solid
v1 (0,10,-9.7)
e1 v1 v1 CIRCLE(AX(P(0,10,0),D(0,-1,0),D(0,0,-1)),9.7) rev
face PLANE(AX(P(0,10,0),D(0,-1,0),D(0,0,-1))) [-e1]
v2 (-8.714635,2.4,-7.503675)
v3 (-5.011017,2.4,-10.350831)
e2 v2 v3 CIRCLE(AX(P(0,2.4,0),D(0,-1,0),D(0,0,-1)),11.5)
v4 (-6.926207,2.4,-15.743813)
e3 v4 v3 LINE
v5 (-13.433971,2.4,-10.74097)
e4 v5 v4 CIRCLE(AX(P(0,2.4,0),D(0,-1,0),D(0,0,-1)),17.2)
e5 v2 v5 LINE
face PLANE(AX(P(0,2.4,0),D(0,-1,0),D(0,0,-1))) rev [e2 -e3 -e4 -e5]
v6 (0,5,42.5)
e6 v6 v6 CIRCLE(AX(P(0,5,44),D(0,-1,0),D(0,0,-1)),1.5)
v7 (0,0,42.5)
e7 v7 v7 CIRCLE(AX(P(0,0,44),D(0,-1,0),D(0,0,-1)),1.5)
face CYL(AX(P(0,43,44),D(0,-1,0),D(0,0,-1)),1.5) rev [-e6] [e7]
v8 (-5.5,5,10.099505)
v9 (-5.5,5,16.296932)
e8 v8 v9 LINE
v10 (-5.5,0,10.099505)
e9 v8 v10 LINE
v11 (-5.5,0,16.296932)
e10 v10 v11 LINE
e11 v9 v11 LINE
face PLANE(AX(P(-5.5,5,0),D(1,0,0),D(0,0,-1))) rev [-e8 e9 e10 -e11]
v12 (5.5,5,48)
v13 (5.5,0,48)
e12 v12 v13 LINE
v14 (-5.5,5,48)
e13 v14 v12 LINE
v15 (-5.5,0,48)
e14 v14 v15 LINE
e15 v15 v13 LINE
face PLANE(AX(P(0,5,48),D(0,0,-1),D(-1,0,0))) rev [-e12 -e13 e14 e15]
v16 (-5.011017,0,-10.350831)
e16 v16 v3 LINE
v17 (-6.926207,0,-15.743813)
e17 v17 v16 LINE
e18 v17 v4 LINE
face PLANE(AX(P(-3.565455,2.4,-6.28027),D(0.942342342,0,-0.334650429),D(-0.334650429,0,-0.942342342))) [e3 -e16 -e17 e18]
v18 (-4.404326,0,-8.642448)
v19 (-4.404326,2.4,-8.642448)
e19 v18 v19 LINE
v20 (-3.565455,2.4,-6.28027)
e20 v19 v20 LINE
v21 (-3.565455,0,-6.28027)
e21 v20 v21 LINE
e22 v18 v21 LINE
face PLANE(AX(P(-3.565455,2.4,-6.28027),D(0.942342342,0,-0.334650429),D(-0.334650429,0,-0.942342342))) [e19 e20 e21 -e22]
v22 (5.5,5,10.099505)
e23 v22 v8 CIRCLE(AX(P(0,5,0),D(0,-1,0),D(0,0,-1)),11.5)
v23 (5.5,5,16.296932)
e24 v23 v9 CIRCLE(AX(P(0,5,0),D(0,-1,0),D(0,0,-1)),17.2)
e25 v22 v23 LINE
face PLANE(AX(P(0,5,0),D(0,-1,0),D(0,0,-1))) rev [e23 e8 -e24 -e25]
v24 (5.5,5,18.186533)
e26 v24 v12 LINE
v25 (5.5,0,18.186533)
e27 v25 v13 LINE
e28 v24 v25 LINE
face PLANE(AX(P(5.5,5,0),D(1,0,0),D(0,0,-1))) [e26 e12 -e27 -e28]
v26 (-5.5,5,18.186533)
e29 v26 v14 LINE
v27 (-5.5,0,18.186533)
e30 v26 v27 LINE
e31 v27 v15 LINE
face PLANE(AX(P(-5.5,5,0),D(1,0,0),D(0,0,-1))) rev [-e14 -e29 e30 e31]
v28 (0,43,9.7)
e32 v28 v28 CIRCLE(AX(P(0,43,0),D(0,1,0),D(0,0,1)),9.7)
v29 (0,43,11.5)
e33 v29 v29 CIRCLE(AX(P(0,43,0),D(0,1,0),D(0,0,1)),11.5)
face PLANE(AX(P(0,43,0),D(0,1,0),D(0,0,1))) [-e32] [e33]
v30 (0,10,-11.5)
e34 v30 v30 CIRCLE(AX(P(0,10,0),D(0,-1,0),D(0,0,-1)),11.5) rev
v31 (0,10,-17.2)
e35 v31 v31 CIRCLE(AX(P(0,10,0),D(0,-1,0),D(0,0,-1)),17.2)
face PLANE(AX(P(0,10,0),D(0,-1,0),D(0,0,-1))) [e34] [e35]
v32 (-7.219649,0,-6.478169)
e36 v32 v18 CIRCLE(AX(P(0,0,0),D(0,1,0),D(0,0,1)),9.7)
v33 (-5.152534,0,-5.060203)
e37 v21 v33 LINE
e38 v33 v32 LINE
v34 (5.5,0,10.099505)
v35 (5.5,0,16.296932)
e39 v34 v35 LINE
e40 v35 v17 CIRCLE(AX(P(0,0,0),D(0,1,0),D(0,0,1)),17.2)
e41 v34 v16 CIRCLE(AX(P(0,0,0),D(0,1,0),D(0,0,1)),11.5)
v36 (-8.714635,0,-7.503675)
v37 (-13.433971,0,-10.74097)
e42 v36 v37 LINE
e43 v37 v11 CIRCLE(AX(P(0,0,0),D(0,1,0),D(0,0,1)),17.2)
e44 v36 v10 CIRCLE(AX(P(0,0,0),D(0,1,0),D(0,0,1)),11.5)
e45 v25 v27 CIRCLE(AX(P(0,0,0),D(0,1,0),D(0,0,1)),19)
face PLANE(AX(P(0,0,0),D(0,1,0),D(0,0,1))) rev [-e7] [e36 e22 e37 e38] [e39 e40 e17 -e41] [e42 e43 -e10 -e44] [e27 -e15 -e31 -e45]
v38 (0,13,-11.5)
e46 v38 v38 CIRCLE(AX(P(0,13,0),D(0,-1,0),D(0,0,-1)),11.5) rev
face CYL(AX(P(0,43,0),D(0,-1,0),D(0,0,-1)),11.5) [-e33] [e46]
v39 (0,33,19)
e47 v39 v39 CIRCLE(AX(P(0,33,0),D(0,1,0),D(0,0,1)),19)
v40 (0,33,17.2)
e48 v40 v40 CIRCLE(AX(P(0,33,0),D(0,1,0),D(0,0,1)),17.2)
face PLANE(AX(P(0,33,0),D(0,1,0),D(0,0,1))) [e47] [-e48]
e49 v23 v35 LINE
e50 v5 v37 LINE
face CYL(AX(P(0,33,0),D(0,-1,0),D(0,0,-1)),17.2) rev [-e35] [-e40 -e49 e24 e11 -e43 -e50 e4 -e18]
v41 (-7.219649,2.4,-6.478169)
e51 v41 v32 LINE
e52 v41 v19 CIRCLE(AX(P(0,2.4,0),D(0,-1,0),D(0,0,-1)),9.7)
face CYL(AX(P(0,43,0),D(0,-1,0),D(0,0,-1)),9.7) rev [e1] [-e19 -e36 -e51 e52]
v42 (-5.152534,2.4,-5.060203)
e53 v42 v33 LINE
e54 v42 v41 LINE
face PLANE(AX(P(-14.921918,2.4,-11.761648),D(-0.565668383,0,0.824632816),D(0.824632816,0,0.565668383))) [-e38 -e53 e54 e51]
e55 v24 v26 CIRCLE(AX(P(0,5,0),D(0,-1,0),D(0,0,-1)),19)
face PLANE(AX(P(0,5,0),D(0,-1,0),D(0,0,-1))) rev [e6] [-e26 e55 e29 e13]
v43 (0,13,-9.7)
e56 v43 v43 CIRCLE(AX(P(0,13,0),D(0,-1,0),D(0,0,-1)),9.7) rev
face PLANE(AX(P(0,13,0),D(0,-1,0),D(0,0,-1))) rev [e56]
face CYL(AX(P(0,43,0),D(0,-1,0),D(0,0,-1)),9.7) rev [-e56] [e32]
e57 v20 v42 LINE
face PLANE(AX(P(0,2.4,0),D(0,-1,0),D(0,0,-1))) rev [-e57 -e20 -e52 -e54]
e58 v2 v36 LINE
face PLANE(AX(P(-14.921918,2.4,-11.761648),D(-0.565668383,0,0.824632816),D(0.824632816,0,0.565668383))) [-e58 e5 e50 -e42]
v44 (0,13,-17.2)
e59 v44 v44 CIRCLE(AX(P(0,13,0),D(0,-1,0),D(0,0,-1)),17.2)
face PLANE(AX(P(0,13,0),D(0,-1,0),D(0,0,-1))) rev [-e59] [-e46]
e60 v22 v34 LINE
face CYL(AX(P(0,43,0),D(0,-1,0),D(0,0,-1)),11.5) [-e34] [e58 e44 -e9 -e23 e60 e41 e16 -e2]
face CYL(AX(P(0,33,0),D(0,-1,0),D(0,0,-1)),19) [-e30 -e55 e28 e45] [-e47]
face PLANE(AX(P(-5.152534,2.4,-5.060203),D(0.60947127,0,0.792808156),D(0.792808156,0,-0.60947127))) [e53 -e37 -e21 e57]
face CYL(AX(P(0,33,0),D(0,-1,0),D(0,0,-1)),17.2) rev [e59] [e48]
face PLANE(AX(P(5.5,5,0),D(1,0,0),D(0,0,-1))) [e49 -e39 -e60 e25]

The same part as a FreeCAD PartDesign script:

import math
import FreeCAD as App
import Part
import Sketcher

V = App.Vector
Q = App.Units.Quantity

doc = App.newDocument("Part")
body = doc.addObject("PartDesign::Body", "Body")

sketch1 = body.newObject("Sketcher::SketchObject", "Sketch")
sketch1.AttachmentSupport = (doc.getObject("XZ_Plane"), [""])
sketch1.MapMode = "FlatFace"
sketch1.addGeometry([
    Part.Circle(V(0, 0, 0), V(0, 0, 1), 19),
    Part.Circle(V(0, 0, 0), V(0, 0, 1), 17),
], False)
sketch1.addConstraint([
    Sketcher.Constraint("Coincident", 0, 3, -1, 1),
    Sketcher.Constraint("Coincident", 1, 3, -1, 1),
    Sketcher.Constraint("Diameter", 0, Q("38 mm")),
    Sketcher.Constraint("Diameter", 1, Q("34.4 mm")),
])
pad1 = body.newObject("PartDesign::Pad", "Pad")
pad1.Profile = sketch1
pad1.Length = 33
pad1.Reversed = True
body2 = doc.addObject("PartDesign::Body", "Body001")

sketch2 = body2.newObject("Sketcher::SketchObject", "Sketch001")
sketch2.AttachmentSupport = (doc.getObject("XZ_Plane001"), [""])
sketch2.MapMode = "FlatFace"
sketch2.addGeometry([
    Part.Circle(V(0, 0, 0), V(0, 0, 1), 12),
    Part.Circle(V(0, 0, 0), V(0, 0, 1), 10),
], False)
sketch2.addConstraint([
    Sketcher.Constraint("Coincident", 0, 3, -1, 1),
    Sketcher.Constraint("Coincident", 1, 3, -1, 1),
    Sketcher.Constraint("Diameter", 0, Q("23 mm")),
    Sketcher.Constraint("Diameter", 1, Q("19.4 mm")),
])
pad2 = body2.newObject("PartDesign::Pad", "Pad001")
pad2.Profile = sketch2
pad2.Length = 43
pad2.Reversed = True
body.AllowCompound = True
doc.recompute()

boolean = body.newObject("PartDesign::Boolean", "Boolean")
boolean.Type = "Fuse"
boolean.addObjects([body2])

sketch3 = body.newObject("Sketcher::SketchObject", "Sketch002")
sketch3.AttachmentSupport = (doc.getObject("XZ_Plane"), [""])
sketch3.MapMode = "FlatFace"
sketch3.AttachmentOffset = App.Placement(V(0, 0, -10), App.Rotation())
sketch3.addGeometry(Part.Circle(V(0, 0, 0), V(0, 0, 1), 17), False)
sketch3.addConstraint([
    Sketcher.Constraint("Coincident", 0, 3, -1, 1),
    Sketcher.Constraint("Diameter", 0, Q("34.4 mm")),
])
pad3 = body.newObject("PartDesign::Pad", "Pad002")
pad3.Profile = sketch3
pad3.Length = 3
pad3.Reversed = True

sketch4 = body.newObject("Sketcher::SketchObject", "Sketch003")
sketch4.AttachmentSupport = (doc.getObject("XZ_Plane"), [""])
sketch4.MapMode = "FlatFace"
sketch4.addGeometry([
    Part.LineSegment(V(-5.2, -5.1, 0), V(-14.9, -11.8, 0)),
    Part.ArcOfCircle(Part.Circle(V(0, 0, 0), V(0, 0, 1), 19), math.radians(-142), math.radians(-113)),
    Part.LineSegment(V(-7.5, -17.4, 0), V(-3.6, -6.3, 0)),
    Part.LineSegment(V(-3.6, -6.3, 0), V(-5.2, -5.1, 0)),
], False)
sketch4.addConstraint([
    Sketcher.Constraint("Coincident", 0, 2, 1, 1),
    Sketcher.Constraint("Coincident", 1, 2, 2, 1),
    Sketcher.Constraint("Coincident", 2, 2, 3, 1),
    Sketcher.Constraint("Coincident", 3, 2, 0, 1),
    Sketcher.Constraint("Coincident", 1, 3, -1, 1),
    Sketcher.Constraint("Equal", 0, 2),
    Sketcher.Constraint("Radius", 1, Q("19 mm")),
    Sketcher.Constraint("Distance", 0, Q("11.84695 mm")),
    Sketcher.Constraint("DistanceY", 0, 2, -1, 1, Q("11.761648 mm")),
    Sketcher.Constraint("DistanceX", 1, 2, -1, 1, Q("7.530042 mm")),
    Sketcher.Constraint("DistanceY", 2, 2, -1, 1, Q("6.28027 mm")),
    Sketcher.Constraint("DistanceX", 3, 2, 2, 2, Q("1.587079 mm")),
])
pad4 = body.newObject("PartDesign::Pad", "Pad003")
pad4.Profile = sketch4
pad4.Length = 2.4
pad4.Reversed = True

sketch5 = body.newObject("Sketcher::SketchObject", "Sketch004")
sketch5.AttachmentSupport = (doc.getObject("XZ_Plane"), [""])
sketch5.MapMode = "FlatFace"
sketch5.addGeometry([
    Part.LineSegment(V(6, 48, 0), V(-6, 48, 0)),
    Part.LineSegment(V(-6, 48, 0), V(-6, 8, 0)),
    Part.ArcOfCircle(Part.Circle(V(0, 0, 0), V(0, 0, 1), 10), math.radians(55), math.radians(125)),
    Part.LineSegment(V(6, 8, 0), V(6, 48, 0)),
], False)
sketch5.addConstraint([
    Sketcher.Constraint("Coincident", 0, 2, 1, 1),
    Sketcher.Constraint("Coincident", 1, 2, 2, 2),
    Sketcher.Constraint("Coincident", 2, 1, 3, 1),
    Sketcher.Constraint("Coincident", 3, 2, 0, 1),
    Sketcher.Constraint("Horizontal", 0),
    Sketcher.Constraint("Vertical", 1),
    Sketcher.Constraint("Vertical", 3),
    Sketcher.Constraint("Coincident", 2, 3, -1, 1),
    Sketcher.Constraint("Horizontal", 1, 2, 2, 1),
    Sketcher.Constraint("Radius", 2, Q("9.7 mm")),
    Sketcher.Constraint("DistanceX", 0, 2, 0, 1, Q("11 mm")),
    Sketcher.Constraint("DistanceY", -1, 1, 0, 2, Q("48 mm")),
])
pad5 = body.newObject("PartDesign::Pad", "Pad004")
pad5.Profile = sketch5
pad5.Length = 5
pad5.Reversed = True

sketch6 = body.newObject("Sketcher::SketchObject", "Sketch005")
sketch6.AttachmentSupport = (doc.getObject("XZ_Plane"), [""])
sketch6.MapMode = "FlatFace"
sketch6.addGeometry(Part.Circle(V(0, 44, 0), V(0, 0, 1), 1.5), False)
sketch6.addConstraint([
    Sketcher.Constraint("PointOnObject", 0, 3, -2),
    Sketcher.Constraint("Diameter", 0, Q("3 mm")),
    Sketcher.Constraint("DistanceY", -1, 1, 0, 3, Q("44 mm")),
])
pocket1 = body.newObject("PartDesign::Pocket", "Pocket")
pocket1.Profile = sketch6
pocket1.Type = "ThroughAll"

doc.recompute()
